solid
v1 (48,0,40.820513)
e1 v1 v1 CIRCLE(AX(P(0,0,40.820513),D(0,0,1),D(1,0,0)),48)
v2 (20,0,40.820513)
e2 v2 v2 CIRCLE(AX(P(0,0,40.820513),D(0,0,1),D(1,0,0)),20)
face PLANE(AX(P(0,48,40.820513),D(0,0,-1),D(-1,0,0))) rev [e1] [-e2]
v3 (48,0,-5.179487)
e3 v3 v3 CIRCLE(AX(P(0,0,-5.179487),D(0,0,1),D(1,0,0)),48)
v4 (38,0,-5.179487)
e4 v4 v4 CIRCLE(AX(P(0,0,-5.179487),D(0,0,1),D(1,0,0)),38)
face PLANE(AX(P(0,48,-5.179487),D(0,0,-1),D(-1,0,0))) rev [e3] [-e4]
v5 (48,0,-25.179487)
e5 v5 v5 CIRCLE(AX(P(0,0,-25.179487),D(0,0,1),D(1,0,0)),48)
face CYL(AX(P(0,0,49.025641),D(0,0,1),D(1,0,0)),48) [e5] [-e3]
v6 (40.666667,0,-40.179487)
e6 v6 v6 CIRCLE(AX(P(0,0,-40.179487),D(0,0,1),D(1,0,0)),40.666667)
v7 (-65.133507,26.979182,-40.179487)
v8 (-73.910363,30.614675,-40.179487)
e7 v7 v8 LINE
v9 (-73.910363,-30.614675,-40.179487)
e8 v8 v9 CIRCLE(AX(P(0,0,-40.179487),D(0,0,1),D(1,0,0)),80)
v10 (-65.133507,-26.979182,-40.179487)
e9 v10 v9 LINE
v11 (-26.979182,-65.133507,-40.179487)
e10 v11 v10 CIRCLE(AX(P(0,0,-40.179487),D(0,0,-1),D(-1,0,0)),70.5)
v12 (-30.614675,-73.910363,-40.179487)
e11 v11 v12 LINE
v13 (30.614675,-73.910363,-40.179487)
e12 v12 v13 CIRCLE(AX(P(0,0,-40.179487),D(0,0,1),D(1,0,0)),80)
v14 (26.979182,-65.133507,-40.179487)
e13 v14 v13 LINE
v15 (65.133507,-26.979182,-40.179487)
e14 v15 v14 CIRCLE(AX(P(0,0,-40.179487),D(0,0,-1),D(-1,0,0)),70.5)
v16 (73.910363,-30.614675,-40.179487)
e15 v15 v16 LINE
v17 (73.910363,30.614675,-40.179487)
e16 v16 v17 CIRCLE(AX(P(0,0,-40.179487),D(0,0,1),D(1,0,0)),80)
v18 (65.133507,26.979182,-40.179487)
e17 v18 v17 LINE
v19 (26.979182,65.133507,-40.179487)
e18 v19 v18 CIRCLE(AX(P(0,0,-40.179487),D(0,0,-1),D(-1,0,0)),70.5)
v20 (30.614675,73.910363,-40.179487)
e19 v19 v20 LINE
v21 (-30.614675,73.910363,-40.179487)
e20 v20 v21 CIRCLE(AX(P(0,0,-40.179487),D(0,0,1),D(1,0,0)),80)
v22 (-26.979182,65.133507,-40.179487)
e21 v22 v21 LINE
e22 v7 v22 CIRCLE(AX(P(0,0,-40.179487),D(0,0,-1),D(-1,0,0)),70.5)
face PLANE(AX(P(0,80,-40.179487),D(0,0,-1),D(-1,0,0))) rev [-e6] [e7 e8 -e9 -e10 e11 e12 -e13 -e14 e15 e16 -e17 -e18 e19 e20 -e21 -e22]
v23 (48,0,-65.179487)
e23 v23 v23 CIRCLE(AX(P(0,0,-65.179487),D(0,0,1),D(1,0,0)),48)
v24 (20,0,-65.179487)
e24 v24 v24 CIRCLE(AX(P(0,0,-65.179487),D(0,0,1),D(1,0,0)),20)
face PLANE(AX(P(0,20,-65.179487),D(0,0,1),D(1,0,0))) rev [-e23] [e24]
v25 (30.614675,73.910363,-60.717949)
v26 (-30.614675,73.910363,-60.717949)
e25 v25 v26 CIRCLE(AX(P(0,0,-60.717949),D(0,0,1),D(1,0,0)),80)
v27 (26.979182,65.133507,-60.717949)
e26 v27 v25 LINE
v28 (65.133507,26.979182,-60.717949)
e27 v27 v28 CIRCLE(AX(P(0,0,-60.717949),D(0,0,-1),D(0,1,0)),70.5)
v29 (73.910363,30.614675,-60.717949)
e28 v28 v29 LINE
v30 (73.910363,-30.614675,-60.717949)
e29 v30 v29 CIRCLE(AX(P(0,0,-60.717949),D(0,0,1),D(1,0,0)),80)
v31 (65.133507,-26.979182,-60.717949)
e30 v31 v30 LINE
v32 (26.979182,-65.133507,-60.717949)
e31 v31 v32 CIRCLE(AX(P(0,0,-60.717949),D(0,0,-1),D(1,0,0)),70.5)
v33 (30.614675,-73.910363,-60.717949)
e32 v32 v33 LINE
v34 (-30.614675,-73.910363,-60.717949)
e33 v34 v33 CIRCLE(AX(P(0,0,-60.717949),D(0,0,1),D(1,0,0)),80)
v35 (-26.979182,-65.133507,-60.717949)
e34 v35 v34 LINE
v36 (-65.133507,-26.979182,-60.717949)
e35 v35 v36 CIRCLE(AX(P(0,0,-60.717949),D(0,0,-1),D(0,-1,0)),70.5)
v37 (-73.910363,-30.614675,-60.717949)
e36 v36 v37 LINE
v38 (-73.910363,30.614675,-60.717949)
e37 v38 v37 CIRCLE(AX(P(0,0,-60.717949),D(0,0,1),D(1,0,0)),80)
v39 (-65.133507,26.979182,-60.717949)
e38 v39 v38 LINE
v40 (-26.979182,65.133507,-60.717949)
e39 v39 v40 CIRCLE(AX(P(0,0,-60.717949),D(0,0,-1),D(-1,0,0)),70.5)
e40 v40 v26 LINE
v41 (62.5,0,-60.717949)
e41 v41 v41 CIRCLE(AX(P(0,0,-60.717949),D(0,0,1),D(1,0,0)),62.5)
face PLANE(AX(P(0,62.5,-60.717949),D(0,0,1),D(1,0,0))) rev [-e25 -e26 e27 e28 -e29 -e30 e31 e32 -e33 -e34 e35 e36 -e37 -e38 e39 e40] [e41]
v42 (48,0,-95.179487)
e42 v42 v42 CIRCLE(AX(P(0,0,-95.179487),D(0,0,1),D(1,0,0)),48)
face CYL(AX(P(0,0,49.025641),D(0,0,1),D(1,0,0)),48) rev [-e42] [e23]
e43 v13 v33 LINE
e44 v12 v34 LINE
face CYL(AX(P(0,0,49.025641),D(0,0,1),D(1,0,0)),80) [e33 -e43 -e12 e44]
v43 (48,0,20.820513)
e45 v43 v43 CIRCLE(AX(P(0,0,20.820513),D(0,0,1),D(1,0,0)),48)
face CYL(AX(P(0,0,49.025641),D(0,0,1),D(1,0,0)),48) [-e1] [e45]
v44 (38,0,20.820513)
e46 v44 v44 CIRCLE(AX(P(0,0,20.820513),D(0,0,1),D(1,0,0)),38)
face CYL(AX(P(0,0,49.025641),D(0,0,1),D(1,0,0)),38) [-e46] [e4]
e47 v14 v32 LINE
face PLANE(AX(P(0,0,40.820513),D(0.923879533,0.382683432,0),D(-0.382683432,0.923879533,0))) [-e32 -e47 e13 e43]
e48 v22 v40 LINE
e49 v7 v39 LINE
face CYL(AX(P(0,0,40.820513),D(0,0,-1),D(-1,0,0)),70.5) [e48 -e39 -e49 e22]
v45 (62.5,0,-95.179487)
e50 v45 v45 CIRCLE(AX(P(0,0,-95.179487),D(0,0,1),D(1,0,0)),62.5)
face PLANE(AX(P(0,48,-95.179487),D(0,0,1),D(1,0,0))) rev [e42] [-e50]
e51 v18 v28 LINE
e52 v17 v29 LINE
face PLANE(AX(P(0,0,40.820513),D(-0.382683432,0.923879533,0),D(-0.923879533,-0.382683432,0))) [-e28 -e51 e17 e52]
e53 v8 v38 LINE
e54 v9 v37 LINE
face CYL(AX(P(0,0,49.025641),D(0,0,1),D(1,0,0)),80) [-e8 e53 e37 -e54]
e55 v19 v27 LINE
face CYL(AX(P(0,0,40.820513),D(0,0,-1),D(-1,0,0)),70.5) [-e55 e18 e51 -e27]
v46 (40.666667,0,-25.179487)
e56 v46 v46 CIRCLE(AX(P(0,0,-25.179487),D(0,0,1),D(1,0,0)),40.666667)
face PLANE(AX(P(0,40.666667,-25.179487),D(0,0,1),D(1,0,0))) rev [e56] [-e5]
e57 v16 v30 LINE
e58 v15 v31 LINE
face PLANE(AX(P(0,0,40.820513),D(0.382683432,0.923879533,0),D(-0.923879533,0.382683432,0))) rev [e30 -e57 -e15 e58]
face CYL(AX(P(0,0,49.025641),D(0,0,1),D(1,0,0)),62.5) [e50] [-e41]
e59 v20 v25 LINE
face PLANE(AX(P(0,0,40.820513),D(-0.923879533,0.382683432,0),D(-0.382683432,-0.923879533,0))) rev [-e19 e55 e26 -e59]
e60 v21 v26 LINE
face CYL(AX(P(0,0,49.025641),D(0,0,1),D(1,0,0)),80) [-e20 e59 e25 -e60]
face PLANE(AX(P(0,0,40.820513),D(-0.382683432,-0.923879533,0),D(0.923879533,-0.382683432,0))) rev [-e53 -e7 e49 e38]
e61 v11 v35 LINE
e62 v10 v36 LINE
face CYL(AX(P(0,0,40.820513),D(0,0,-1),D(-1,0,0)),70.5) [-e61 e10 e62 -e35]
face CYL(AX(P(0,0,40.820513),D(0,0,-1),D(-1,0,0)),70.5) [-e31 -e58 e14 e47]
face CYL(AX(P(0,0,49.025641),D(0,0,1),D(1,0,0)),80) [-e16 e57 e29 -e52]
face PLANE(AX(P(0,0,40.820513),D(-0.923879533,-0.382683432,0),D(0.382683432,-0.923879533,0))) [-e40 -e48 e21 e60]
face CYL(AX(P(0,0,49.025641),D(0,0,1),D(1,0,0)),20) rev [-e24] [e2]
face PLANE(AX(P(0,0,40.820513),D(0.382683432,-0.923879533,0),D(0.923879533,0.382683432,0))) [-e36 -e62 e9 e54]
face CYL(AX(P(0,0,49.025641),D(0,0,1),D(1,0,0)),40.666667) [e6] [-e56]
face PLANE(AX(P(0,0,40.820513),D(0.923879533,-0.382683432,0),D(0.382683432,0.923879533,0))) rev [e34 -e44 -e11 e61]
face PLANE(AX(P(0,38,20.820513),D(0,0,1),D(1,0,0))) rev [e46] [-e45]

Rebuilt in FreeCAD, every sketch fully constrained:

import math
import FreeCAD as App
import Part
import Sketcher
from FreeCAD import Vector
Q = App.Units.Quantity

doc = App.newDocument("Part")
body = doc.addObject("PartDesign::Body", "Body")

# Sketch on YZ plane
sketch1 = doc.addObject("Sketcher::SketchObject", "Sketch")
body.addObject(sketch1)
sketch1.AttachmentSupport = (doc.YZ_Plane, [""])
sketch1.MapMode = "FlatFace"
sketch1.addGeometry([
    Part.LineSegment(Vector(20, 41, 0), Vector(20, -65, 0)),  # 0
    Part.LineSegment(Vector(20, -65, 0), Vector(48, -65, 0)),  # 1
    Part.LineSegment(Vector(48, -65, 0), Vector(48, -95, 0)),  # 2
    Part.LineSegment(Vector(48, -95, 0), Vector(62, -95, 0)),  # 3
    Part.LineSegment(Vector(62, -95, 0), Vector(62, -61, 0)),  # 4
    Part.LineSegment(Vector(62, -61, 0), Vector(80, -61, 0)),  # 5
    Part.LineSegment(Vector(80, -61, 0), Vector(80, -40, 0)),  # 6
    Part.LineSegment(Vector(80, -40, 0), Vector(41, -40, 0)),  # 7
    Part.LineSegment(Vector(41, -40, 0), Vector(41, -25, 0)),  # 8
    Part.LineSegment(Vector(41, -25, 0), Vector(48, -25, 0)),  # 9
    Part.LineSegment(Vector(48, -25, 0), Vector(48, -5, 0)),  # 10
    Part.LineSegment(Vector(48, -5, 0), Vector(38, -5, 0)),  # 11
    Part.LineSegment(Vector(38, -5, 0), Vector(38, 21, 0)),  # 12
    Part.LineSegment(Vector(38, 21, 0), Vector(48, 21, 0)),  # 13
    Part.LineSegment(Vector(48, 21, 0), Vector(48, 41, 0)),  # 14
    Part.LineSegment(Vector(48, 41, 0), Vector(20, 41, 0)),  # 15
], False)
sketch1.addConstraint([
    Sketcher.Constraint("Coincident", 0, 2, 1, 1),
    Sketcher.Constraint("Coincident", 1, 2, 2, 1),
    Sketcher.Constraint("Coincident", 2, 2, 3, 1),
    Sketcher.Constraint("Coincident", 3, 2, 4, 1),
    Sketcher.Constraint("Coincident", 4, 2, 5, 1),
    Sketcher.Constraint("Coincident", 5, 2, 6, 1),
    Sketcher.Constraint("Coincident", 6, 2, 7, 1),
    Sketcher.Constraint("Coincident", 7, 2, 8, 1),
    Sketcher.Constraint("Coincident", 8, 2, 9, 1),
    Sketcher.Constraint("Coincident", 9, 2, 10, 1),
    Sketcher.Constraint("Coincident", 10, 2, 11, 1),
    Sketcher.Constraint("Coincident", 11, 2, 12, 1),
    Sketcher.Constraint("Coincident", 12, 2, 13, 1),
    Sketcher.Constraint("Coincident", 13, 2, 14, 1),
    Sketcher.Constraint("Coincident", 14, 2, 15, 1),
    Sketcher.Constraint("Coincident", 15, 2, 0, 1),
    Sketcher.Constraint("Vertical", 0),
    Sketcher.Constraint("Horizontal", 1),
    Sketcher.Constraint("Vertical", 2),
    Sketcher.Constraint("Horizontal", 3),
    Sketcher.Constraint("Vertical", 4),
    Sketcher.Constraint("Horizontal", 5),
    Sketcher.Constraint("Vertical", 6),
    Sketcher.Constraint("Horizontal", 7),
    Sketcher.Constraint("Vertical", 8),
    Sketcher.Constraint("Horizontal", 9),
    Sketcher.Constraint("Vertical", 10),
    Sketcher.Constraint("Horizontal", 11),
    Sketcher.Constraint("Vertical", 12),
    Sketcher.Constraint("Horizontal", 13),
    Sketcher.Constraint("Vertical", 14),
    Sketcher.Constraint("Horizontal", 15),
    Sketcher.Constraint("Vertical", 2, 2, 9, 2),
    Sketcher.Constraint("Vertical", 10, 2, 13, 2),
    Sketcher.Constraint("Equal", 10, 14),
    Sketcher.Constraint("DistanceX", 1, 1, 1, 2, Q("28 mm")),
    Sketcher.Constraint("DistanceX", 11, 2, 11, 1, Q("10 mm")),
    Sketcher.Constraint("DistanceY", 0, 2, 0, 1, Q("106 mm")),
    Sketcher.Constraint("DistanceY", 2, 2, 2, 1, Q("30 mm")),
    Sketcher.Constraint("DistanceY", 8, 1, 8, 2, Q("15 mm")),
    Sketcher.Constraint("DistanceY", 10, 1, 10, 2, Q("20 mm")),
    Sketcher.Constraint("DistanceY", 12, 1, 12, 2, Q("26 mm")),
    Sketcher.Constraint("DistanceX", 3, 1, 3, 2, Q("14.5 mm")),
    Sketcher.Constraint("DistanceX", 5, 1, 5, 2, Q("17.5 mm")),
    Sketcher.Constraint("DistanceX", -1, 1, 0, 2, Q("20 mm")),
    Sketcher.Constraint("DistanceY", 4, 1, 4, 2, Q("34.461538 mm")),
    Sketcher.Constraint("DistanceX", 7, 2, 7, 1, Q("39.333333 mm")),
    Sketcher.Constraint("DistanceY", 4, 2, -1, 1, Q("60.717949 mm")),
])
revolution = doc.addObject("PartDesign::Revolution", "Revolution")
body.addObject(revolution)
revolution.Profile = sketch1
revolution.ReferenceAxis = (sketch1, ["V_Axis"])
revolution.Angle = 360

# Sketch on XY plane
sketch2 = doc.addObject("Sketcher::SketchObject", "Sketch001")
body.addObject(sketch2)
sketch2.AttachmentSupport = (doc.XY_Plane, [""])
sketch2.MapMode = "FlatFace"
sketch2.AttachmentOffset = App.Placement(Vector(0, 0, -60.717949), App.Rotation())
sketch2.addGeometry([
    Part.ArcOfCircle(Part.Circle(Vector(0, 0, 0), Vector(0, 0, 1), 70), math.radians(112), math.radians(158)),
    Part.LineSegment(Vector(-65, 27, 0), Vector(-74, 31, 0)),
    Part.ArcOfCircle(Part.Circle(Vector(0, 0, 0), Vector(0, 0, 1), 80), math.radians(112), math.radians(158)),
    Part.LineSegment(Vector(-31, 74, 0), Vector(-27, 65, 0)),
], False)
sketch2.addConstraint([
    Sketcher.Constraint("Coincident", 0, 2, 1, 1),
    Sketcher.Constraint("Coincident", 1, 2, 2, 2),
    Sketcher.Constraint("Coincident", 2, 1, 3, 1),
    Sketcher.Constraint("Coincident", 3, 2, 0, 1),
    Sketcher.Constraint("Coincident", 0, 3, -1, 1),
    Sketcher.Constraint("Coincident", 2, 3, -1, 1),
    Sketcher.Constraint("Radius", 2, Q("80 mm")),
    Sketcher.Constraint("Radius", 0, Q("70.5 mm")),
    Sketcher.Constraint("Angle", 1, Q("157.5 deg")),
    Sketcher.Constraint("Angle", 3, Q("-67.5 deg")),
    Sketcher.Constraint("DistanceY", -1, 1, 0, 2, Q("26.979182 mm")),
    Sketcher.Constraint("DistanceX", 3, 2, -1, 1, Q("26.979182 mm")),
])
pocket1 = doc.addObject("PartDesign::Pocket", "Pocket")
body.addObject(pocket1)
pocket1.Profile = sketch2
pocket1.Type = "ThroughAll"
pocket1.Reversed = True
doc.recompute()

polarpattern = doc.addObject("PartDesign::PolarPattern", "PolarPattern")
body.addObject(polarpattern)
polarpattern.Originals = [pocket1]
polarpattern.Axis = (doc.Z_Axis, [""])
polarpattern.Angle = 360
polarpattern.Occurrences = 4
body.Tip = polarpattern

doc.recompute()
